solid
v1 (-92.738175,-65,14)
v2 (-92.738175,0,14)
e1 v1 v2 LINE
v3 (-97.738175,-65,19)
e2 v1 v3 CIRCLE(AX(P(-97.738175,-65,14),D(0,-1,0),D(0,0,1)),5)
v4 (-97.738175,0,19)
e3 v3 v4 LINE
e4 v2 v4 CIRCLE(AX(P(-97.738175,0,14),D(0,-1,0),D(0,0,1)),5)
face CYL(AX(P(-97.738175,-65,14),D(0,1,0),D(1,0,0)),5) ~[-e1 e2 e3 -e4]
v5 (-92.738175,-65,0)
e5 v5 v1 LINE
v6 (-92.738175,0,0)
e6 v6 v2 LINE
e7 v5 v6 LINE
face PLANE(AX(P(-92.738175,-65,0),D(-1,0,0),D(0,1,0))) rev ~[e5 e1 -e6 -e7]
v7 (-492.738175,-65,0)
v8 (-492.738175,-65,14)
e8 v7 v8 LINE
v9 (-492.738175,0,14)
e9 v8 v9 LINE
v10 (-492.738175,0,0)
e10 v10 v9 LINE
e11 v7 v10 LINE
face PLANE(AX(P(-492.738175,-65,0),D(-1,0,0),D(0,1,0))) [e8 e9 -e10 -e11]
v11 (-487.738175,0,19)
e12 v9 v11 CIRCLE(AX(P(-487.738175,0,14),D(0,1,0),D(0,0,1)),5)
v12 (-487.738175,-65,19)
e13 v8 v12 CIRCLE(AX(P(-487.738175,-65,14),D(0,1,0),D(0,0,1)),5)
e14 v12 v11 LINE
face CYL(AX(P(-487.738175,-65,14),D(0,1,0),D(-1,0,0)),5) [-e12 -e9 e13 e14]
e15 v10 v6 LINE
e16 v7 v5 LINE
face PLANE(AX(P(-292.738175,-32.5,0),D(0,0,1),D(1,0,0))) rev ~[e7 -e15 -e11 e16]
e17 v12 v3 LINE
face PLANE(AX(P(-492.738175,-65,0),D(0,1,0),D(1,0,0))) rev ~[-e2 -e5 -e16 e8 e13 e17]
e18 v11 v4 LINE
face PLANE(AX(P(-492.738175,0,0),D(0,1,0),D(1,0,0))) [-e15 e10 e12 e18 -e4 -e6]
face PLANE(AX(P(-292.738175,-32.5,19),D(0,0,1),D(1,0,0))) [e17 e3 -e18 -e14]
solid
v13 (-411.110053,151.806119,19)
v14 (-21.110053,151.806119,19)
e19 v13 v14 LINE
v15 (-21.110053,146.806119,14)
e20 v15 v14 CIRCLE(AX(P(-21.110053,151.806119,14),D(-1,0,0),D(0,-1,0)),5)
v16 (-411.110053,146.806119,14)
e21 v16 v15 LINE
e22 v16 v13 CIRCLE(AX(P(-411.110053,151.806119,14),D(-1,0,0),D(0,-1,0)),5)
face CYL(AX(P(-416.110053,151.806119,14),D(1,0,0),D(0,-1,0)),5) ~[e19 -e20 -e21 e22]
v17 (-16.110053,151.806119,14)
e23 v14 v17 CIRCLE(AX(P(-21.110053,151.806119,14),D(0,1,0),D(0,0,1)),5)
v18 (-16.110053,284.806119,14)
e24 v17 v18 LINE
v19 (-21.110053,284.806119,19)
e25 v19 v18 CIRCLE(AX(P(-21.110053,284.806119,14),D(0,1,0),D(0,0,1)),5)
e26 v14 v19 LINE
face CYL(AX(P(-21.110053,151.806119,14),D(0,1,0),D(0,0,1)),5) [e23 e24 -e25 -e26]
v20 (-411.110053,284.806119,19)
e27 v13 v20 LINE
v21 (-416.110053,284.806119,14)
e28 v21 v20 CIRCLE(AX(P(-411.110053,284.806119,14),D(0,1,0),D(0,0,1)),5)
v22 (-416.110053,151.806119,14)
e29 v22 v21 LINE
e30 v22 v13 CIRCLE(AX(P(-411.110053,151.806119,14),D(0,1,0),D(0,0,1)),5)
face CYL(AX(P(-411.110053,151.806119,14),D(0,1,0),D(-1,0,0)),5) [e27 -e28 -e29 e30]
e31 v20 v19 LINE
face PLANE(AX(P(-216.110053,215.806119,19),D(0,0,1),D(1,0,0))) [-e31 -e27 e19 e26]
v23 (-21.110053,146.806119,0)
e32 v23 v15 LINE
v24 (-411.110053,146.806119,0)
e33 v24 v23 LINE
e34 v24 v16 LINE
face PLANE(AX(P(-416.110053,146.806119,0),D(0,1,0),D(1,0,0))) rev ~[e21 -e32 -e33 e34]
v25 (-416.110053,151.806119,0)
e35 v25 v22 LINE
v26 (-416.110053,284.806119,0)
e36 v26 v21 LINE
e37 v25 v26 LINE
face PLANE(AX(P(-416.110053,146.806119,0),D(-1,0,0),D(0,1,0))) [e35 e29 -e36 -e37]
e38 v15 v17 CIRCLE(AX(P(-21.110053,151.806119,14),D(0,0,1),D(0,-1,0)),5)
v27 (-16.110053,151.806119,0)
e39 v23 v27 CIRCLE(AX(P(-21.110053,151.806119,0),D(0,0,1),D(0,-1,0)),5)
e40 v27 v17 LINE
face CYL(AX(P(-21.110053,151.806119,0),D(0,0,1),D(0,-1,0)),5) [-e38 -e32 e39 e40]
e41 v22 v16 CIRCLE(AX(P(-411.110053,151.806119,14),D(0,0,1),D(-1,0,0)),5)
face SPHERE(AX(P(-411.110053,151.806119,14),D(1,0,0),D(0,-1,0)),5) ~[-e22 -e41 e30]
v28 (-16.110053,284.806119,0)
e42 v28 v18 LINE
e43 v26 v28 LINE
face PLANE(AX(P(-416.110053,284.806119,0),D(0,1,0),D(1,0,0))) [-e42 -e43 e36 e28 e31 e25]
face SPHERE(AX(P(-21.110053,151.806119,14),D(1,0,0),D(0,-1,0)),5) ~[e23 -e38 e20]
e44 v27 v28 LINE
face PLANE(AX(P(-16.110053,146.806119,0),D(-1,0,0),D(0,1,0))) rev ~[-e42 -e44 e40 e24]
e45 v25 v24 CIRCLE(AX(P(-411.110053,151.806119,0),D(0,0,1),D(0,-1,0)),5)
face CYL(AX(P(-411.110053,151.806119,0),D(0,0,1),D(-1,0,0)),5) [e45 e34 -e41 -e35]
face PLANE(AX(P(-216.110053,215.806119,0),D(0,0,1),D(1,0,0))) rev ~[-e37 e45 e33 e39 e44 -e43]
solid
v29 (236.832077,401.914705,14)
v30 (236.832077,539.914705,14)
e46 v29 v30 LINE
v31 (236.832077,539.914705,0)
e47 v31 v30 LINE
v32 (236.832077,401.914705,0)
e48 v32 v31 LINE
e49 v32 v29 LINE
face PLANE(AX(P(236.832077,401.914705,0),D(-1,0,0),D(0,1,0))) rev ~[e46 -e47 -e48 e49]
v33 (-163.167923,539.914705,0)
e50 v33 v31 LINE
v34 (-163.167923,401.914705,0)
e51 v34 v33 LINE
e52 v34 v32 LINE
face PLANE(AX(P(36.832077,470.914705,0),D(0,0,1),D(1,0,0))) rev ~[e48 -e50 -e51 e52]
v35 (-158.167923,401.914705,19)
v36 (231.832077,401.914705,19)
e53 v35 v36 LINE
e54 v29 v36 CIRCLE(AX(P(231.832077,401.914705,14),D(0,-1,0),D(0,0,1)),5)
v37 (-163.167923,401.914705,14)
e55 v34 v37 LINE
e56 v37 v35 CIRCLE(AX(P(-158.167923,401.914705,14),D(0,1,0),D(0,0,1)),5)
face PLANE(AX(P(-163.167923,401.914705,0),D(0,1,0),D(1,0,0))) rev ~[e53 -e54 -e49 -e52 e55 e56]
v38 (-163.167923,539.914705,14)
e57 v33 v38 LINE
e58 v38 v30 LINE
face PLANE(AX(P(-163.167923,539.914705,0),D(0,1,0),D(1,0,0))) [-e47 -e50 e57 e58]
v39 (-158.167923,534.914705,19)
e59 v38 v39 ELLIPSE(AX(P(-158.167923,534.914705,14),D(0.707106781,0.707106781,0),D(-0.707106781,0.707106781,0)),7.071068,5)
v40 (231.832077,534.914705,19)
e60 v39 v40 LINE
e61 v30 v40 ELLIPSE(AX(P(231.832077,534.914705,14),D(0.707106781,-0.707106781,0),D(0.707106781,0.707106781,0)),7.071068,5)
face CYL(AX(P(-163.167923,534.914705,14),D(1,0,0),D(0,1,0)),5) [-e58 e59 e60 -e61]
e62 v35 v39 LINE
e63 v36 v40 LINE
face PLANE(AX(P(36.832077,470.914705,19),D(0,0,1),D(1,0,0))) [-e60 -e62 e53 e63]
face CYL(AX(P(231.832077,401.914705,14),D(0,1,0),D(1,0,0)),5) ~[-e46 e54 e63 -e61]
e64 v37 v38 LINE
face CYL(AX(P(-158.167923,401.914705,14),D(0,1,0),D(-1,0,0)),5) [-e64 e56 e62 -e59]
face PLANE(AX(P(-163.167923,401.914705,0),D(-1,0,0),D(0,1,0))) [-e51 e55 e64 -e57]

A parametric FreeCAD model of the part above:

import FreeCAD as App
import Part
import Sketcher
Q = App.Units.Quantity


def edges_at(feature, points):
    """Names of the edges that pass closest to the given points."""
    edges = feature.Shape.Edges
    near = lambda p: min(range(len(edges)), key=lambda i: edges[i].distToShape(Part.Vertex(*p))[0])
    return sorted({f"Edge{near(p) + 1}" for p in points})


def add_polygon(sketch, points):
    """Adds a closed chain of lines whose ends are joined by coincident constraints."""
    first, n = sketch.GeometryCount, len(points)
    for a, b in zip(points, points[1:] + points[:1]):
        sketch.addGeometry(Part.LineSegment(App.Vector(*a, 0), App.Vector(*b, 0)), False)
    for i in range(n):
        sketch.addConstraint(Sketcher.Constraint("Coincident", first + i, 2, first + (i + 1) % n, 1))

doc = App.newDocument("Part")
body = doc.addObject("PartDesign::Body", "Body")
body.AllowCompound = True

# Sketch on XY plane
sketch1 = body.newObject("Sketcher::SketchObject", "Sketch")
sketch1.AttachmentSupport = (doc.getObject("XY_Plane"), [""])
sketch1.MapMode = "FlatFace"
add_polygon(sketch1, [(-493, 0), (-493, -65), (-93, -65), (-93, 0)])  # lines 0-3
add_polygon(sketch1, [(-416, 285), (-416, 147), (-16, 147), (-16, 285)])  # lines 4-7
add_polygon(sketch1, [(-163, 540), (-163, 402), (237, 402), (237, 540)])  # lines 8-11
sketch1.addConstraint([
    Sketcher.Constraint("Vertical", 0),
    Sketcher.Constraint("Horizontal", 1),
    Sketcher.Constraint("Vertical", 2),
    Sketcher.Constraint("Horizontal", 3),
    Sketcher.Constraint("Vertical", 4),
    Sketcher.Constraint("Horizontal", 5),
    Sketcher.Constraint("Vertical", 6),
    Sketcher.Constraint("Horizontal", 7),
    Sketcher.Constraint("Vertical", 8),
    Sketcher.Constraint("Horizontal", 9),
    Sketcher.Constraint("Vertical", 10),
    Sketcher.Constraint("Horizontal", 11),
    Sketcher.Constraint("PointOnObject", 2, 2, -1),
    Sketcher.Constraint("Equal", 3, 5),
    Sketcher.Constraint("Equal", 7, 9),
    Sketcher.Constraint("Equal", 6, 8),
    Sketcher.Constraint("DistanceX", 1, 1, 1, 2, Q("400 mm")),
    Sketcher.Constraint("DistanceY", 0, 2, 0, 1, Q("65 mm")),
    Sketcher.Constraint("DistanceY", 4, 2, 4, 1, Q("138 mm")),
    Sketcher.Constraint("DistanceY", -1, 1, 4, 2, Q("146.806119 mm")),
    Sketcher.Constraint("DistanceX", 4, 2, 2, 2, Q("323.371878 mm")),
    Sketcher.Constraint("DistanceX", 8, 2, 6, 2, Q("147.05787 mm")),
    Sketcher.Constraint("DistanceX", 0, 2, -1, 1, Q("492.738175 mm")),
    Sketcher.Constraint("DistanceY", -1, 1, 8, 2, Q("401.914705 mm")),
])
pad1 = body.newObject("PartDesign::Pad", "Pad")
pad1.Profile = sketch1
pad1.Length = 19
doc.recompute()

fillet = body.newObject("PartDesign::Fillet", "Fillet")
fillet.Base = (pad1, edges_at(pad1, [(-216.11, 146.806, 19)]))
fillet.Radius = 5
doc.recompute()

fillet2 = body.newObject("PartDesign::Fillet", "Fillet001")
fillet2.Base = (fillet, edges_at(fillet, [(-16.11, 218.306, 19)]))
fillet2.Radius = 5
doc.recompute()

fillet3 = body.newObject("PartDesign::Fillet", "Fillet002")
fillet3.Base = (fillet2, edges_at(fillet2, [(-416.11, 218.306, 19)]))
fillet3.Radius = 5
doc.recompute()

fillet4 = body.newObject("PartDesign::Fillet", "Fillet003")
fillet4.Base = (fillet3, edges_at(fillet3, [(-492.738, -32.5, 19), (-92.738, -32.5, 19)]))
fillet4.Radius = 5
doc.recompute()

fillet5 = body.newObject("PartDesign::Fillet", "Fillet004")
fillet5.Base = (fillet4, edges_at(fillet4, [(-163.168, 470.915, 19), (36.832, 539.915, 19), (236.832, 470.915, 19)]))
fillet5.Radius = 5

doc.recompute()
